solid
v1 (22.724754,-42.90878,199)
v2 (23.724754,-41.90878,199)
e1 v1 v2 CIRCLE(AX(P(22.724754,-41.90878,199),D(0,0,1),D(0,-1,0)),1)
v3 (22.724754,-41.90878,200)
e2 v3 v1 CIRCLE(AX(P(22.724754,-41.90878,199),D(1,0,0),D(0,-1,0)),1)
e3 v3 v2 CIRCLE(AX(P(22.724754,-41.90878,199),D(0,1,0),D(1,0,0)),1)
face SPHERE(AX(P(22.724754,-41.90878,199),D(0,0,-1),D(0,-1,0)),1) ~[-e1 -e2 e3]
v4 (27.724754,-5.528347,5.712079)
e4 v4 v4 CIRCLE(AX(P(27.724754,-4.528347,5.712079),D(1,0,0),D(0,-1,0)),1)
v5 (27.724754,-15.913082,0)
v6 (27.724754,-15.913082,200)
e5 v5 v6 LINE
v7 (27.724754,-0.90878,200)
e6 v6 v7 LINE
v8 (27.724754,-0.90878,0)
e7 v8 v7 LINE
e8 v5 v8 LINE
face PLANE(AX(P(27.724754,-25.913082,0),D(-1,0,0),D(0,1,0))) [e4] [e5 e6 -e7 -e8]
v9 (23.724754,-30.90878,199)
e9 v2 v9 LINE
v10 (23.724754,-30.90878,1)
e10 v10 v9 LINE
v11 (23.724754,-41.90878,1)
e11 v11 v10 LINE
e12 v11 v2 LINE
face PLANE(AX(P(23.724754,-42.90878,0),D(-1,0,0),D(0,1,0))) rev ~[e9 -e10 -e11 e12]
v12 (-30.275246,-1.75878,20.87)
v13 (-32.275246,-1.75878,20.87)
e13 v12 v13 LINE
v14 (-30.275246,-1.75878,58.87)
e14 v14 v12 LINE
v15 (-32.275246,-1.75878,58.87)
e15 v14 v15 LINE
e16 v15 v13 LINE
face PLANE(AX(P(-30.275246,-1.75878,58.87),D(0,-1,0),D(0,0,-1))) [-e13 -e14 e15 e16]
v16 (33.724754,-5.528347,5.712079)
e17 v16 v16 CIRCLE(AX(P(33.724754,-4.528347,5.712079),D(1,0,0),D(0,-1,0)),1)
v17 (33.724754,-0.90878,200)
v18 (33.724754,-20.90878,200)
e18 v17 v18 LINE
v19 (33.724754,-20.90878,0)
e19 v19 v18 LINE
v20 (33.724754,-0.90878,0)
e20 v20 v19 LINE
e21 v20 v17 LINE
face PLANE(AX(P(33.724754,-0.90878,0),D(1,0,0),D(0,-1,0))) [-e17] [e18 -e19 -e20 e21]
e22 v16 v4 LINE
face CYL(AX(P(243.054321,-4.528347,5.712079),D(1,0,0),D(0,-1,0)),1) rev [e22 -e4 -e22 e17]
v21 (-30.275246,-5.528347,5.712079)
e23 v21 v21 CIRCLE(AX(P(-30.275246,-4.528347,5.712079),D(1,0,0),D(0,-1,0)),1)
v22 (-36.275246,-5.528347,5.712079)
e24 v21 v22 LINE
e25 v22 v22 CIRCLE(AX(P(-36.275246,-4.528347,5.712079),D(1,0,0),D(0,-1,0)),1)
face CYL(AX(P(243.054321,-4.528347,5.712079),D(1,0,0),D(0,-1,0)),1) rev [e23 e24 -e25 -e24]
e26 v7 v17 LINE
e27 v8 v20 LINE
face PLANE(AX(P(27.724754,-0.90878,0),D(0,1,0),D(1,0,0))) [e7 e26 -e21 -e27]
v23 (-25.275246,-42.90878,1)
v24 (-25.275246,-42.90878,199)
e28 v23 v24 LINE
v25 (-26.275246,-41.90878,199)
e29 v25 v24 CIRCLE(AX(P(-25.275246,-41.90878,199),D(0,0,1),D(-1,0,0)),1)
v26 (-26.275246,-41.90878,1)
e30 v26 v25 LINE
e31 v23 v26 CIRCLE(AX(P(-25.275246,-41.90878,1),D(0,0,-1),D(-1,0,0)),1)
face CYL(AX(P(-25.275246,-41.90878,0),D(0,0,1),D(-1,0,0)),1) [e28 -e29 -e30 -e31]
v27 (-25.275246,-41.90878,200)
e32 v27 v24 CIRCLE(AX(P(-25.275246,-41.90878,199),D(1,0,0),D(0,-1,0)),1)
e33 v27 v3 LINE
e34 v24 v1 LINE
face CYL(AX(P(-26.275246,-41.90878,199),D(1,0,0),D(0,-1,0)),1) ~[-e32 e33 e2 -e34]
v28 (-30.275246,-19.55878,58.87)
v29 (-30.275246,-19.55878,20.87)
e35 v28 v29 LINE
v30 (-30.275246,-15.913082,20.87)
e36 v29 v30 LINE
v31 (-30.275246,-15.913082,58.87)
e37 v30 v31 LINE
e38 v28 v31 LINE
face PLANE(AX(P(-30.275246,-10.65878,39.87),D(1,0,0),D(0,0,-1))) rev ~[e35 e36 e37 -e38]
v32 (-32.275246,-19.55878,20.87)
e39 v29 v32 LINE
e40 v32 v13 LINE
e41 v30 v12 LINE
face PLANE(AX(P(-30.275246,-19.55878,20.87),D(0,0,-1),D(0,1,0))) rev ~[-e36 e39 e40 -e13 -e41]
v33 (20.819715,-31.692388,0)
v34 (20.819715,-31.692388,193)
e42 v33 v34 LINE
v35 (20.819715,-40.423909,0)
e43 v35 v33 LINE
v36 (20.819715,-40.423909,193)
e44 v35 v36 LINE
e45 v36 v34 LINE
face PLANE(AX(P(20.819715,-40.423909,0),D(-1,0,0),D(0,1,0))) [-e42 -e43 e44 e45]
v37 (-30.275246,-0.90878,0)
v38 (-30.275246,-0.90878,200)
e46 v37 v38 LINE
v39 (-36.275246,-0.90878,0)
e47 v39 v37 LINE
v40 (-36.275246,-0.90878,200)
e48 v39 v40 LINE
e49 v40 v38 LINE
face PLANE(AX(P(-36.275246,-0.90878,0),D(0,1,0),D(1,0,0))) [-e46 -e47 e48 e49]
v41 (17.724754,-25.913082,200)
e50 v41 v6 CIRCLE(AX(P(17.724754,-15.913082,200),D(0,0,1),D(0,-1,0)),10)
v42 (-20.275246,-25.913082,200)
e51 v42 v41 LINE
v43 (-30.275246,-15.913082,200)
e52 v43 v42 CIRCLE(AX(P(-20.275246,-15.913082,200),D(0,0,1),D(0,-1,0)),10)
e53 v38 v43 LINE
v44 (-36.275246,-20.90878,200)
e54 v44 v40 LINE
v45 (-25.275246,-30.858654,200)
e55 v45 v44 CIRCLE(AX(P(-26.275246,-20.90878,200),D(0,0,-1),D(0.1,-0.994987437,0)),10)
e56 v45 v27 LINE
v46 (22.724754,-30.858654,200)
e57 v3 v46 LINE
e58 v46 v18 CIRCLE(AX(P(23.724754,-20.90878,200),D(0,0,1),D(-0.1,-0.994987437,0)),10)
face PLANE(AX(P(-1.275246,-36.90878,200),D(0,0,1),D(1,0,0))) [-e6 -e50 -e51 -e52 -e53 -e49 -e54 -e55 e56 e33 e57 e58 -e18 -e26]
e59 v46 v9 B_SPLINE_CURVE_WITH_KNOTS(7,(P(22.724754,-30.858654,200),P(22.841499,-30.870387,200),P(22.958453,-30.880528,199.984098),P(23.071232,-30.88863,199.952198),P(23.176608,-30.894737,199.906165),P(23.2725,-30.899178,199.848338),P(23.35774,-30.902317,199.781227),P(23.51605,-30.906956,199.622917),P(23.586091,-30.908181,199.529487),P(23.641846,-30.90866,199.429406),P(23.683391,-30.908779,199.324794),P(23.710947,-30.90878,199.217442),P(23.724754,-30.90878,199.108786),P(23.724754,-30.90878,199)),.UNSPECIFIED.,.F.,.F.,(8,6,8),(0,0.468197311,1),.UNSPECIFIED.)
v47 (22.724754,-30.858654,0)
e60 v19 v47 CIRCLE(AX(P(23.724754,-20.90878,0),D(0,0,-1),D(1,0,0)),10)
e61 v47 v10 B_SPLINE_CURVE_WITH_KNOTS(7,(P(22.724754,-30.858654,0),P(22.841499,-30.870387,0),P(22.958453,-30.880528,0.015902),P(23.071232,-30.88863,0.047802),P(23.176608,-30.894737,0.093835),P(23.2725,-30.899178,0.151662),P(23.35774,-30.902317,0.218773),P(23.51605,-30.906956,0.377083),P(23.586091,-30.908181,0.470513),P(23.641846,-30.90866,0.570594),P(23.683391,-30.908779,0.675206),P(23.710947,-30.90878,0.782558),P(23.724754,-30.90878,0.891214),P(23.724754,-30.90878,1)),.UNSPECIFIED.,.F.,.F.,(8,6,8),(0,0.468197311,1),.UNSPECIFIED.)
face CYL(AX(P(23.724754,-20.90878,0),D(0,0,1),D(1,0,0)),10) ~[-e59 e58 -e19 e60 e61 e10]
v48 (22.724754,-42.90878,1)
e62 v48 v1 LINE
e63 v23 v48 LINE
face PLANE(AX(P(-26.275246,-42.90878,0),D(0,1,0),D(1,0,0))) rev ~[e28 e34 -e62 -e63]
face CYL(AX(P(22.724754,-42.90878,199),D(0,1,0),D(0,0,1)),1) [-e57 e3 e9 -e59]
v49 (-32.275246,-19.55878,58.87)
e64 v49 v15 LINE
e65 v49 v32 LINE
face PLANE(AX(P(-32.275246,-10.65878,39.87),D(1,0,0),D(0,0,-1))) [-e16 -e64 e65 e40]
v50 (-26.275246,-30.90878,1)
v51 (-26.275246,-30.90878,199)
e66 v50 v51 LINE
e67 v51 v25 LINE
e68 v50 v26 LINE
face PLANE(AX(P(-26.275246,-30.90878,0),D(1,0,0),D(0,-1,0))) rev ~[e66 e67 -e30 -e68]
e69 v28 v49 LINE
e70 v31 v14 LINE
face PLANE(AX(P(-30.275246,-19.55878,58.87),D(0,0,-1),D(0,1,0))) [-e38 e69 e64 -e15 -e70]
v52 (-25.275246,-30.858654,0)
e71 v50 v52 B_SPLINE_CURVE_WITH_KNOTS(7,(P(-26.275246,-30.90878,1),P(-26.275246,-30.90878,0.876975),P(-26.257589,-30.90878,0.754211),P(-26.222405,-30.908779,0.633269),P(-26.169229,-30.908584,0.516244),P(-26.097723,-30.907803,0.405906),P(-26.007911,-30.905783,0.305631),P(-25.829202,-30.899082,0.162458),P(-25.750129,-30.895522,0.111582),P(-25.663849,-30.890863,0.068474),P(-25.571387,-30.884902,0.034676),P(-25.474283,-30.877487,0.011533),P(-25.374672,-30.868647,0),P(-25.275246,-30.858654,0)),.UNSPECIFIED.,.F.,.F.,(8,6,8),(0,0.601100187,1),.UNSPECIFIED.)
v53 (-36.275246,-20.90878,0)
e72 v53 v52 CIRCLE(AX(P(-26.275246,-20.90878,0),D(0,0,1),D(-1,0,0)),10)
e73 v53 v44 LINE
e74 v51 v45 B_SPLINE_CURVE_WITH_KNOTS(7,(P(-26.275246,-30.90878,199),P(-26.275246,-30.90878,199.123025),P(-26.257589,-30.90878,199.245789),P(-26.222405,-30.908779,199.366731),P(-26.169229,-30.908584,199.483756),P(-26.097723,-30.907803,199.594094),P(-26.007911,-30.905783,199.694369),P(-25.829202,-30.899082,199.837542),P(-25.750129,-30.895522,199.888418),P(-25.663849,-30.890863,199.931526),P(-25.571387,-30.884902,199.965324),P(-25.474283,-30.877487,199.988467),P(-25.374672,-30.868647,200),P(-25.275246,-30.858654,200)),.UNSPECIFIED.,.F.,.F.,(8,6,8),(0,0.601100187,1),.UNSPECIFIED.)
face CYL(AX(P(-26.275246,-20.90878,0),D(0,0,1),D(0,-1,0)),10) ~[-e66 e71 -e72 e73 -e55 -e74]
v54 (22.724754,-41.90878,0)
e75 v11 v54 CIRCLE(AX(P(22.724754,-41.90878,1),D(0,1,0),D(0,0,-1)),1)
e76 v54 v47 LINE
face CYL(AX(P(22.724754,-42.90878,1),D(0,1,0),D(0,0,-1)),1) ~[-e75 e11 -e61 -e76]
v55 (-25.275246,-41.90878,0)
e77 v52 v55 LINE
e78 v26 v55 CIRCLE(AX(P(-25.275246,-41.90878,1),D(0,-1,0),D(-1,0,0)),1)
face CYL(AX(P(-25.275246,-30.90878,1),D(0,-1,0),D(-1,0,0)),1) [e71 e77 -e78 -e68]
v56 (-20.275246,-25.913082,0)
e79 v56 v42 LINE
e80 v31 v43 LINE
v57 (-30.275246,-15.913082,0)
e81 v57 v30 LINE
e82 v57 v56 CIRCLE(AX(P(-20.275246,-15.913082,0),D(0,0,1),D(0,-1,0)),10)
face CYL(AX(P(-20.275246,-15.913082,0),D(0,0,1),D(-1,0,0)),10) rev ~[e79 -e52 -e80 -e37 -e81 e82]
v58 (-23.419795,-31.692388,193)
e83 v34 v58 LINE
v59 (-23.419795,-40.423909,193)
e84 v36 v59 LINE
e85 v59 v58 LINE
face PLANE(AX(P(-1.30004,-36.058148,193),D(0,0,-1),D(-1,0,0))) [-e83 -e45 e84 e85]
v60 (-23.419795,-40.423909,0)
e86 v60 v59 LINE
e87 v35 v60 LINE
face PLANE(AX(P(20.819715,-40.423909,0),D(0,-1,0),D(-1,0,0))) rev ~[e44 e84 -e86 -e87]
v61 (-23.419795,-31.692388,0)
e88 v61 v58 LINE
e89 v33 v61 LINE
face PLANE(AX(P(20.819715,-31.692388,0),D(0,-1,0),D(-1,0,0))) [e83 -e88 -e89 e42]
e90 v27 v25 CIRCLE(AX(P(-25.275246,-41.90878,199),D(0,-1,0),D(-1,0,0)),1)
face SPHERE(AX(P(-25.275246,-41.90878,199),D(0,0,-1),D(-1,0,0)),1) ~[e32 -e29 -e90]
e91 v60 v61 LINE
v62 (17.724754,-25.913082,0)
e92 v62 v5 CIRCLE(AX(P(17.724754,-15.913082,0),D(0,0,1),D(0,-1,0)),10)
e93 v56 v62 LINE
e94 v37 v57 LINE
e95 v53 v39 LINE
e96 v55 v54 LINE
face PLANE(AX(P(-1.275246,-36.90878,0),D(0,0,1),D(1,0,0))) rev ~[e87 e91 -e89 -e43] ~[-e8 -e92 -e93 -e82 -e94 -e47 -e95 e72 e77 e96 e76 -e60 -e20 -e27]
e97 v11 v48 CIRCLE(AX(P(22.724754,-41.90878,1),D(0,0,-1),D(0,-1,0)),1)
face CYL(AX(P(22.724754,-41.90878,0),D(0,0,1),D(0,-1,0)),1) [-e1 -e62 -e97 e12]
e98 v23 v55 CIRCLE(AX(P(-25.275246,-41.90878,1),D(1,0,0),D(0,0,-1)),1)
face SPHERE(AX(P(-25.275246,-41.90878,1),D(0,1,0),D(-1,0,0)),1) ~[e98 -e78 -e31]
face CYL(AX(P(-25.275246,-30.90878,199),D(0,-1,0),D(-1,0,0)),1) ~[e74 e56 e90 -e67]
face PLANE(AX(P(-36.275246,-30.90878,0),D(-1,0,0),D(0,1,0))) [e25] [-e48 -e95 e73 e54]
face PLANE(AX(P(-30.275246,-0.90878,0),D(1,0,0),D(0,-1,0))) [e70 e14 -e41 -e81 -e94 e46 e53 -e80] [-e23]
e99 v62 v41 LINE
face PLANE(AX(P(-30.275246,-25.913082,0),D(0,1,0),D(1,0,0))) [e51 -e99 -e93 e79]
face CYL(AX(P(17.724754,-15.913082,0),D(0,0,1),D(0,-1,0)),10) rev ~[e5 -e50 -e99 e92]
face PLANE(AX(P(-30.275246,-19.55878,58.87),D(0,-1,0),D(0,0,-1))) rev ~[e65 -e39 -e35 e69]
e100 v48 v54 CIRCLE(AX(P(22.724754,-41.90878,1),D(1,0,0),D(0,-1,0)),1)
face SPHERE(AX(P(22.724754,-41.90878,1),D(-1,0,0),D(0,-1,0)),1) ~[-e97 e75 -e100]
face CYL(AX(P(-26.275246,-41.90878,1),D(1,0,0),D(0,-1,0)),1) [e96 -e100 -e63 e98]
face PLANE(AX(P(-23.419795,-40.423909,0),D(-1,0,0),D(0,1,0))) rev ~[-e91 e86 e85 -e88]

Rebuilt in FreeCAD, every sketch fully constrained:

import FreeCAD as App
import Part
import Sketcher

V = App.Vector
Q = App.Units.Quantity


def edges_at(feature, points):
    """Names of the edges that pass closest to the given points."""
    edges = feature.Shape.Edges
    near = lambda p: min(range(len(edges)), key=lambda i: edges[i].distToShape(Part.Vertex(*p))[0])
    return sorted({f"Edge{near(p) + 1}" for p in points})


def add_polygon(sketch, points):
    """Adds a closed chain of lines whose ends are joined by coincident constraints."""
    first, n = sketch.GeometryCount, len(points)
    for a, b in zip(points, points[1:] + points[:1]):
        sketch.addGeometry(Part.LineSegment(App.Vector(*a, 0), App.Vector(*b, 0)), False)
    for i in range(n):
        sketch.addConstraint(Sketcher.Constraint("Coincident", first + i, 2, first + (i + 1) % n, 1))

doc = App.newDocument("Part")
body = doc.addObject("PartDesign::Body", "Body")

# Sketch on XY plane
sketch1 = body.newObject("Sketcher::SketchObject", "Sketch")
sketch1.AttachmentSupport = (doc.getObject("XY_Plane"), [""])
sketch1.MapMode = "FlatFace"
add_polygon(sketch1, [(-30, -26), (-30, -1), (-36, -1), (-36, -31), (34, -31), (34, -1), (28, -1), (28, -26)])  # lines 0-7
sketch1.addConstraint(Sketcher.Constraint("Vertical", 0))
sketch1.addConstraint(Sketcher.Constraint("Horizontal", 1))
sketch1.addConstraint(Sketcher.Constraint("Vertical", 2))
sketch1.addConstraint(Sketcher.Constraint("Horizontal", 3))
sketch1.addConstraint(Sketcher.Constraint("Vertical", 4))
sketch1.addConstraint(Sketcher.Constraint("Horizontal", 5))
sketch1.addConstraint(Sketcher.Constraint("Vertical", 6))
sketch1.addConstraint(Sketcher.Constraint("Horizontal", 7))
sketch1.addConstraint(Sketcher.Constraint("Horizontal", 1, 2, 4, 2))
sketch1.addConstraint(Sketcher.Constraint("Equal", 1, 5))
sketch1.addConstraint(Sketcher.Constraint("DistanceX", 1, 2, 1, 1, Q("6 mm")))
sketch1.addConstraint(Sketcher.Constraint("DistanceX", 3, 1, 3, 2, Q("70 mm")))
sketch1.addConstraint(Sketcher.Constraint("DistanceY", 2, 2, 2, 1, Q("30 mm")))
sketch1.addConstraint(Sketcher.Constraint("DistanceY", 0, 1, 0, 2, Q("25.004303 mm")))
sketch1.addConstraint(Sketcher.Constraint("DistanceY", 0, 2, -1, 1, Q("0.90878 mm")))
sketch1.addConstraint(Sketcher.Constraint("DistanceX", 0, 2, -1, 1, Q("30.275246 mm")))
pad1 = body.newObject("PartDesign::Pad", "Pad")
pad1.Profile = sketch1
pad1.Length = 200
doc.recompute()

fillet = body.newObject("PartDesign::Fillet", "Fillet")
fillet.Base = (pad1, edges_at(pad1, [
    (-30.275, -25.913, 100),
    (27.725, -25.913, 100),
    (33.725, -30.909, 100),
    (-36.275, -30.909, 100),
]))
fillet.Radius = 10

# Sketch on YZ plane
sketch2 = body.newObject("Sketcher::SketchObject", "Sketch001")
sketch2.AttachmentSupport = (doc.getObject("YZ_Plane"), [""])
sketch2.MapMode = "FlatFace"
sketch2.AttachmentOffset = App.Placement(V(0, 0, -30.275246), App.Rotation())
add_polygon(sketch2, [(-2, 59), (-20, 59), (-20, 21), (-2, 21)])  # lines 0-3
sketch2.addConstraint(Sketcher.Constraint("Horizontal", 0))
sketch2.addConstraint(Sketcher.Constraint("Vertical", 1))
sketch2.addConstraint(Sketcher.Constraint("Horizontal", 2))
sketch2.addConstraint(Sketcher.Constraint("Vertical", 3))
sketch2.addConstraint(Sketcher.Constraint("DistanceY", 1, 2, 1, 1, Q("38 mm")))
sketch2.addConstraint(Sketcher.Constraint("DistanceX", 0, 2, 0, 1, Q("17.8 mm")))
sketch2.addConstraint(Sketcher.Constraint("DistanceY", -1, 1, 0, 2, Q("58.87 mm")))
sketch2.addConstraint(Sketcher.Constraint("DistanceX", 0, 2, -1, 1, Q("19.55878 mm")))
pocket1 = body.newObject("PartDesign::Pocket", "Pocket")
pocket1.Profile = sketch2
pocket1.Length = 2

# Sketch on XY plane
sketch3 = body.newObject("Sketcher::SketchObject", "Sketch002")
sketch3.AttachmentSupport = (doc.getObject("XY_Plane"), [""])
sketch3.MapMode = "FlatFace"
add_polygon(sketch3, [(-26, -31), (-26, -43), (24, -43), (24, -31)])  # lines 0-3
sketch3.addConstraint(Sketcher.Constraint("Vertical", 0))
sketch3.addConstraint(Sketcher.Constraint("Horizontal", 1))
sketch3.addConstraint(Sketcher.Constraint("Vertical", 2))
sketch3.addConstraint(Sketcher.Constraint("Horizontal", 3))
sketch3.addConstraint(Sketcher.Constraint("DistanceX", 1, 1, 1, 2, Q("50 mm")))
sketch3.addConstraint(Sketcher.Constraint("DistanceY", 0, 2, 0, 1, Q("12 mm")))
sketch3.addConstraint(Sketcher.Constraint("DistanceY", 0, 2, -1, 1, Q("42.90878 mm")))
sketch3.addConstraint(Sketcher.Constraint("DistanceX", 0, 2, -1, 1, Q("26.275246 mm")))
pad2 = body.newObject("PartDesign::Pad", "Pad001")
pad2.Profile = sketch3
pad2.Length = 200
doc.recompute()

fillet2 = body.newObject("PartDesign::Fillet", "Fillet001")
fillet2.Base = (pad2, edges_at(pad2, [
    (-26.275, -36.909, 0),
    (-26.275, -42.909, 100),
    (-1.275, -42.909, 0),
    (23.725, -42.909, 100),
    (23.725, -36.909, 0),
    (-26.275, -36.909, 200),
    (-1.275, -42.909, 200),
    (23.725, -36.909, 200),
]))
fillet2.Radius = 1

# Sketch on XY plane
sketch4 = body.newObject("Sketcher::SketchObject", "Sketch003")
sketch4.AttachmentSupport = (doc.getObject("XY_Plane"), [""])
sketch4.MapMode = "FlatFace"
add_polygon(sketch4, [(21, -32), (21, -40), (-23, -40), (-23, -32)])  # lines 0-3
sketch4.addConstraint(Sketcher.Constraint("Vertical", 0))
sketch4.addConstraint(Sketcher.Constraint("Horizontal", 1))
sketch4.addConstraint(Sketcher.Constraint("Vertical", 2))
sketch4.addConstraint(Sketcher.Constraint("Horizontal", 3))
sketch4.addConstraint(Sketcher.Constraint("DistanceX", 1, 2, 1, 1, Q("44.239511 mm")))
sketch4.addConstraint(Sketcher.Constraint("DistanceY", 0, 2, 0, 1, Q("8.731521 mm")))
sketch4.addConstraint(Sketcher.Constraint("DistanceY", 0, 2, -1, 1, Q("40.423909 mm")))
sketch4.addConstraint(Sketcher.Constraint("DistanceX", -1, 1, 0, 2, Q("20.819715 mm")))
pocket2 = body.newObject("PartDesign::Pocket", "Pocket001")
pocket2.Profile = sketch4
pocket2.Length = 193
pocket2.Reversed = True

# Sketch on YZ plane
sketch5 = body.newObject("Sketcher::SketchObject", "Sketch004")
sketch5.AttachmentSupport = (doc.getObject("YZ_Plane"), [""])
sketch5.MapMode = "FlatFace"
sketch5.AttachmentOffset = App.Placement(V(0, 0, 27.724754), App.Rotation())
sketch5.addGeometry(Part.Circle(V(-4.5, 5.7, 0), V(0, 0, 1), 1), False)
sketch5.addConstraint(Sketcher.Constraint("Diameter", 0, Q("2 mm")))
sketch5.addConstraint(Sketcher.Constraint("DistanceY", -1, 1, 0, 3, Q("5.712079 mm")))
sketch5.addConstraint(Sketcher.Constraint("DistanceX", 0, 3, -1, 1, Q("4.528347 mm")))
pocket3 = body.newObject("PartDesign::Pocket", "Pocket002")
pocket3.Profile = sketch5
pocket3.Type = "ThroughAll"
pocket3.Midplane = True

doc.recompute()
